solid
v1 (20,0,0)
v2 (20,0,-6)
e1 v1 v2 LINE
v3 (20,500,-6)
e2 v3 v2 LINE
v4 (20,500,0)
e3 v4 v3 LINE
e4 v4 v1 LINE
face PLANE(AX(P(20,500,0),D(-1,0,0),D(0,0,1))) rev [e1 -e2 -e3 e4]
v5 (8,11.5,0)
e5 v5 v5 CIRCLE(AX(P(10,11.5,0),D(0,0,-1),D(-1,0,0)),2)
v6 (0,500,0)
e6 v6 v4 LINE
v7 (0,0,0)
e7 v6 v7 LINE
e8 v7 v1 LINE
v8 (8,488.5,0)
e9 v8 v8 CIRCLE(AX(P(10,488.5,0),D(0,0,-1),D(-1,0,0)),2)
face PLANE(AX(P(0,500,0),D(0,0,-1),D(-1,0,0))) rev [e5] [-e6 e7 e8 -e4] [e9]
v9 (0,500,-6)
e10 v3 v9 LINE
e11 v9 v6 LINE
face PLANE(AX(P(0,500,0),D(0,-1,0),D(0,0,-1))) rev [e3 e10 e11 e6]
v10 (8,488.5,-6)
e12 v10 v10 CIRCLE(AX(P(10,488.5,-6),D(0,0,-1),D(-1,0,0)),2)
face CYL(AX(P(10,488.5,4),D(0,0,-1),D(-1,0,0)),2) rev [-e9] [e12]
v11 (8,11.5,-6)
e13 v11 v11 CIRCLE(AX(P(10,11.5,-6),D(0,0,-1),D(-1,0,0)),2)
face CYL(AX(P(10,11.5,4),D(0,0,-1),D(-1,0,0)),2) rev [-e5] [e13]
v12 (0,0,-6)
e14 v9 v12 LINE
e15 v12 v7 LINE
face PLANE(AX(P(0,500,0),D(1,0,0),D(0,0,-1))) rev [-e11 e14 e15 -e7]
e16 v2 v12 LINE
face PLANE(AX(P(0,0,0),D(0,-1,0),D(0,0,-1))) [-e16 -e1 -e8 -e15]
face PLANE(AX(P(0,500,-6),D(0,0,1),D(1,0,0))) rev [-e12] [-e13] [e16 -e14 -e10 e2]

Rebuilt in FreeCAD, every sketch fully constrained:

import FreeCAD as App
import Part
import Sketcher
from FreeCAD import Vector
Q = App.Units.Quantity

doc = App.newDocument("Part")
body = doc.addObject("PartDesign::Body", "Body")

# Sketch on XZ plane
sketch1 = doc.addObject("Sketcher::SketchObject", "Sketch")
body.addObject(sketch1)
sketch1.AttachmentSupport = (doc.XZ_Plane, [""])
sketch1.MapMode = "FlatFace"
sketch1.addGeometry(Part.LineSegment(Vector(0, -6, 0), Vector(0, 0, 0)), False)
sketch1.addGeometry(Part.LineSegment(Vector(0, 0, 0), Vector(20, 0, 0)), False)
sketch1.addGeometry(Part.LineSegment(Vector(20, 0, 0), Vector(20, -6, 0)), False)
sketch1.addGeometry(Part.LineSegment(Vector(20, -6, 0), Vector(0, -6, 0)), False)
sketch1.addConstraint(Sketcher.Constraint("Coincident", 0, 2, 1, 1))
sketch1.addConstraint(Sketcher.Constraint("Coincident", 1, 2, 2, 1))
sketch1.addConstraint(Sketcher.Constraint("Coincident", 2, 2, 3, 1))
sketch1.addConstraint(Sketcher.Constraint("Coincident", 3, 2, 0, 1))
sketch1.addConstraint(Sketcher.Constraint("Vertical", 0))
sketch1.addConstraint(Sketcher.Constraint("Horizontal", 1))
sketch1.addConstraint(Sketcher.Constraint("Vertical", 2))
sketch1.addConstraint(Sketcher.Constraint("Horizontal", 3))
sketch1.addConstraint(Sketcher.Constraint("Coincident", 0, 2, -1, 1))
sketch1.addConstraint(Sketcher.Constraint("DistanceX", 1, 1, 1, 2, Q("20 mm")))
sketch1.addConstraint(Sketcher.Constraint("DistanceY", 0, 1, 0, 2, Q("6 mm")))
pad1 = doc.addObject("PartDesign::Pad", "Pad")
body.addObject(pad1)
pad1.Profile = sketch1
pad1.Length = 500
pad1.Reversed = True

# Sketch on XY plane
sketch2 = doc.addObject("Sketcher::SketchObject", "Sketch001")
body.addObject(sketch2)
sketch2.AttachmentSupport = (doc.XY_Plane, [""])
sketch2.MapMode = "FlatFace"
sketch2.AttachmentOffset = App.Placement(Vector(0, 0, -6), App.Rotation())
sketch2.addGeometry(Part.Circle(Vector(10, 488.5, 0), Vector(0, 0, 1), 2), False)
sketch2.addGeometry(Part.Circle(Vector(10, 11.5, 0), Vector(0, 0, 1), 2), False)
sketch2.addConstraint(Sketcher.Constraint("Equal", 0, 1))
sketch2.addConstraint(Sketcher.Constraint("Vertical", 0, 3, 1, 3))
sketch2.addConstraint(Sketcher.Constraint("Diameter", 0, Q("4 mm")))
sketch2.addConstraint(Sketcher.Constraint("DistanceX", -1, 1, 0, 3, Q("10 mm")))
sketch2.addConstraint(Sketcher.Constraint("DistanceY", 1, 3, 0, 3, Q("477 mm")))
sketch2.addConstraint(Sketcher.Constraint("DistanceY", -1, 1, 0, 3, Q("488.5 mm")))
pocket1 = doc.addObject("PartDesign::Pocket", "Pocket")
body.addObject(pocket1)
pocket1.Profile = sketch2
pocket1.Length = 10
pocket1.Reversed = True

doc.recompute()
